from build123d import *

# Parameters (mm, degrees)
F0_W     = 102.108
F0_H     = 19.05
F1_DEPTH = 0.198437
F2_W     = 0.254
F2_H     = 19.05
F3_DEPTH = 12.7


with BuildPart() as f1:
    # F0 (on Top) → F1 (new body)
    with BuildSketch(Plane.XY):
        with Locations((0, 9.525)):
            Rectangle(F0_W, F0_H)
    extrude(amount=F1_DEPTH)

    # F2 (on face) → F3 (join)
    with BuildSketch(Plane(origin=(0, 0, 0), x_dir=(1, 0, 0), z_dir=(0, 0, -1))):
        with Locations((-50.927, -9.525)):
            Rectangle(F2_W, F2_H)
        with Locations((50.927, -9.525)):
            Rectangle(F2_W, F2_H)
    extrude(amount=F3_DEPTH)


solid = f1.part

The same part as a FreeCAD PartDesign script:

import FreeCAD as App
import Part
import Sketcher
Q = App.Units.Quantity


def add_polygon(sketch, points):
    """Adds a closed chain of lines whose ends are joined by coincident constraints."""
    first, n = sketch.GeometryCount, len(points)
    for a, b in zip(points, points[1:] + points[:1]):
        sketch.addGeometry(Part.LineSegment(App.Vector(*a, 0), App.Vector(*b, 0)), False)
    for i in range(n):
        sketch.addConstraint(Sketcher.Constraint("Coincident", first + i, 2, first + (i + 1) % n, 1))

doc = App.newDocument("Part")
body = doc.addObject("PartDesign::Body", "Body")

# Sketch on XY plane
sketch1 = body.newObject("Sketcher::SketchObject", "Sketch")
sketch1.AttachmentSupport = (doc.getObject("XY_Plane"), [""])
sketch1.MapMode = "FlatFace"
add_polygon(sketch1, [(-51, 19), (-51, 0), (51, 0), (51, 19)])  # lines 0-3
sketch1.addConstraint([
    Sketcher.Constraint("Vertical", 0),
    Sketcher.Constraint("Horizontal", 1),
    Sketcher.Constraint("Vertical", 2),
    Sketcher.Constraint("Horizontal", 3),
    Sketcher.Constraint("Symmetric", 0, 2, 1, 2, -1, 1),
    Sketcher.Constraint("DistanceX", 1, 1, 1, 2, Q("4.02 in")),
    Sketcher.Constraint("DistanceY", 0, 2, 0, 1, Q("0.75 in")),
])
pad1 = body.newObject("PartDesign::Pad", "Pad")
pad1.Profile = sketch1
pad1.Length = 0.198437

# Sketch on XY plane
sketch2 = body.newObject("Sketcher::SketchObject", "Sketch001")
sketch2.AttachmentSupport = (doc.getObject("XY_Plane"), [""])
sketch2.MapMode = "FlatFace"
add_polygon(sketch2, [(-51.05, 0), (-51.05, 19.05), (-50.8, 19.05), (-50.8, 0)])  # lines 0-3
add_polygon(sketch2, [(50.8, 0), (50.8, 19.05), (51.05, 19.05), (51.05, 0)])  # lines 4-7
sketch2.addConstraint([
    Sketcher.Constraint("Vertical", 0),
    Sketcher.Constraint("Horizontal", 1),
    Sketcher.Constraint("Vertical", 2),
    Sketcher.Constraint("Horizontal", 3),
    Sketcher.Constraint("Vertical", 4),
    Sketcher.Constraint("Horizontal", 5),
    Sketcher.Constraint("Vertical", 6),
    Sketcher.Constraint("Horizontal", 7),
    Sketcher.Constraint("Symmetric", 3, 2, 6, 2, -1, 1),
    Sketcher.Constraint("Symmetric", 1, 2, 4, 2, -2),
    Sketcher.Constraint("PointOnObject", 2, 2, -1),
    Sketcher.Constraint("DistanceX", 1, 2, -1, 1, Q("2 in")),
    Sketcher.Constraint("DistanceX", 1, 1, 1, 2, Q("0.01 in")),
    Sketcher.Constraint("DistanceY", 0, 1, 0, 2, Q("0.75 in")),
])
pad2 = body.newObject("PartDesign::Pad", "Pad001")
pad2.Profile = sketch2
pad2.Length = Q("0.5 in")
pad2.Reversed = True

doc.recompute()
